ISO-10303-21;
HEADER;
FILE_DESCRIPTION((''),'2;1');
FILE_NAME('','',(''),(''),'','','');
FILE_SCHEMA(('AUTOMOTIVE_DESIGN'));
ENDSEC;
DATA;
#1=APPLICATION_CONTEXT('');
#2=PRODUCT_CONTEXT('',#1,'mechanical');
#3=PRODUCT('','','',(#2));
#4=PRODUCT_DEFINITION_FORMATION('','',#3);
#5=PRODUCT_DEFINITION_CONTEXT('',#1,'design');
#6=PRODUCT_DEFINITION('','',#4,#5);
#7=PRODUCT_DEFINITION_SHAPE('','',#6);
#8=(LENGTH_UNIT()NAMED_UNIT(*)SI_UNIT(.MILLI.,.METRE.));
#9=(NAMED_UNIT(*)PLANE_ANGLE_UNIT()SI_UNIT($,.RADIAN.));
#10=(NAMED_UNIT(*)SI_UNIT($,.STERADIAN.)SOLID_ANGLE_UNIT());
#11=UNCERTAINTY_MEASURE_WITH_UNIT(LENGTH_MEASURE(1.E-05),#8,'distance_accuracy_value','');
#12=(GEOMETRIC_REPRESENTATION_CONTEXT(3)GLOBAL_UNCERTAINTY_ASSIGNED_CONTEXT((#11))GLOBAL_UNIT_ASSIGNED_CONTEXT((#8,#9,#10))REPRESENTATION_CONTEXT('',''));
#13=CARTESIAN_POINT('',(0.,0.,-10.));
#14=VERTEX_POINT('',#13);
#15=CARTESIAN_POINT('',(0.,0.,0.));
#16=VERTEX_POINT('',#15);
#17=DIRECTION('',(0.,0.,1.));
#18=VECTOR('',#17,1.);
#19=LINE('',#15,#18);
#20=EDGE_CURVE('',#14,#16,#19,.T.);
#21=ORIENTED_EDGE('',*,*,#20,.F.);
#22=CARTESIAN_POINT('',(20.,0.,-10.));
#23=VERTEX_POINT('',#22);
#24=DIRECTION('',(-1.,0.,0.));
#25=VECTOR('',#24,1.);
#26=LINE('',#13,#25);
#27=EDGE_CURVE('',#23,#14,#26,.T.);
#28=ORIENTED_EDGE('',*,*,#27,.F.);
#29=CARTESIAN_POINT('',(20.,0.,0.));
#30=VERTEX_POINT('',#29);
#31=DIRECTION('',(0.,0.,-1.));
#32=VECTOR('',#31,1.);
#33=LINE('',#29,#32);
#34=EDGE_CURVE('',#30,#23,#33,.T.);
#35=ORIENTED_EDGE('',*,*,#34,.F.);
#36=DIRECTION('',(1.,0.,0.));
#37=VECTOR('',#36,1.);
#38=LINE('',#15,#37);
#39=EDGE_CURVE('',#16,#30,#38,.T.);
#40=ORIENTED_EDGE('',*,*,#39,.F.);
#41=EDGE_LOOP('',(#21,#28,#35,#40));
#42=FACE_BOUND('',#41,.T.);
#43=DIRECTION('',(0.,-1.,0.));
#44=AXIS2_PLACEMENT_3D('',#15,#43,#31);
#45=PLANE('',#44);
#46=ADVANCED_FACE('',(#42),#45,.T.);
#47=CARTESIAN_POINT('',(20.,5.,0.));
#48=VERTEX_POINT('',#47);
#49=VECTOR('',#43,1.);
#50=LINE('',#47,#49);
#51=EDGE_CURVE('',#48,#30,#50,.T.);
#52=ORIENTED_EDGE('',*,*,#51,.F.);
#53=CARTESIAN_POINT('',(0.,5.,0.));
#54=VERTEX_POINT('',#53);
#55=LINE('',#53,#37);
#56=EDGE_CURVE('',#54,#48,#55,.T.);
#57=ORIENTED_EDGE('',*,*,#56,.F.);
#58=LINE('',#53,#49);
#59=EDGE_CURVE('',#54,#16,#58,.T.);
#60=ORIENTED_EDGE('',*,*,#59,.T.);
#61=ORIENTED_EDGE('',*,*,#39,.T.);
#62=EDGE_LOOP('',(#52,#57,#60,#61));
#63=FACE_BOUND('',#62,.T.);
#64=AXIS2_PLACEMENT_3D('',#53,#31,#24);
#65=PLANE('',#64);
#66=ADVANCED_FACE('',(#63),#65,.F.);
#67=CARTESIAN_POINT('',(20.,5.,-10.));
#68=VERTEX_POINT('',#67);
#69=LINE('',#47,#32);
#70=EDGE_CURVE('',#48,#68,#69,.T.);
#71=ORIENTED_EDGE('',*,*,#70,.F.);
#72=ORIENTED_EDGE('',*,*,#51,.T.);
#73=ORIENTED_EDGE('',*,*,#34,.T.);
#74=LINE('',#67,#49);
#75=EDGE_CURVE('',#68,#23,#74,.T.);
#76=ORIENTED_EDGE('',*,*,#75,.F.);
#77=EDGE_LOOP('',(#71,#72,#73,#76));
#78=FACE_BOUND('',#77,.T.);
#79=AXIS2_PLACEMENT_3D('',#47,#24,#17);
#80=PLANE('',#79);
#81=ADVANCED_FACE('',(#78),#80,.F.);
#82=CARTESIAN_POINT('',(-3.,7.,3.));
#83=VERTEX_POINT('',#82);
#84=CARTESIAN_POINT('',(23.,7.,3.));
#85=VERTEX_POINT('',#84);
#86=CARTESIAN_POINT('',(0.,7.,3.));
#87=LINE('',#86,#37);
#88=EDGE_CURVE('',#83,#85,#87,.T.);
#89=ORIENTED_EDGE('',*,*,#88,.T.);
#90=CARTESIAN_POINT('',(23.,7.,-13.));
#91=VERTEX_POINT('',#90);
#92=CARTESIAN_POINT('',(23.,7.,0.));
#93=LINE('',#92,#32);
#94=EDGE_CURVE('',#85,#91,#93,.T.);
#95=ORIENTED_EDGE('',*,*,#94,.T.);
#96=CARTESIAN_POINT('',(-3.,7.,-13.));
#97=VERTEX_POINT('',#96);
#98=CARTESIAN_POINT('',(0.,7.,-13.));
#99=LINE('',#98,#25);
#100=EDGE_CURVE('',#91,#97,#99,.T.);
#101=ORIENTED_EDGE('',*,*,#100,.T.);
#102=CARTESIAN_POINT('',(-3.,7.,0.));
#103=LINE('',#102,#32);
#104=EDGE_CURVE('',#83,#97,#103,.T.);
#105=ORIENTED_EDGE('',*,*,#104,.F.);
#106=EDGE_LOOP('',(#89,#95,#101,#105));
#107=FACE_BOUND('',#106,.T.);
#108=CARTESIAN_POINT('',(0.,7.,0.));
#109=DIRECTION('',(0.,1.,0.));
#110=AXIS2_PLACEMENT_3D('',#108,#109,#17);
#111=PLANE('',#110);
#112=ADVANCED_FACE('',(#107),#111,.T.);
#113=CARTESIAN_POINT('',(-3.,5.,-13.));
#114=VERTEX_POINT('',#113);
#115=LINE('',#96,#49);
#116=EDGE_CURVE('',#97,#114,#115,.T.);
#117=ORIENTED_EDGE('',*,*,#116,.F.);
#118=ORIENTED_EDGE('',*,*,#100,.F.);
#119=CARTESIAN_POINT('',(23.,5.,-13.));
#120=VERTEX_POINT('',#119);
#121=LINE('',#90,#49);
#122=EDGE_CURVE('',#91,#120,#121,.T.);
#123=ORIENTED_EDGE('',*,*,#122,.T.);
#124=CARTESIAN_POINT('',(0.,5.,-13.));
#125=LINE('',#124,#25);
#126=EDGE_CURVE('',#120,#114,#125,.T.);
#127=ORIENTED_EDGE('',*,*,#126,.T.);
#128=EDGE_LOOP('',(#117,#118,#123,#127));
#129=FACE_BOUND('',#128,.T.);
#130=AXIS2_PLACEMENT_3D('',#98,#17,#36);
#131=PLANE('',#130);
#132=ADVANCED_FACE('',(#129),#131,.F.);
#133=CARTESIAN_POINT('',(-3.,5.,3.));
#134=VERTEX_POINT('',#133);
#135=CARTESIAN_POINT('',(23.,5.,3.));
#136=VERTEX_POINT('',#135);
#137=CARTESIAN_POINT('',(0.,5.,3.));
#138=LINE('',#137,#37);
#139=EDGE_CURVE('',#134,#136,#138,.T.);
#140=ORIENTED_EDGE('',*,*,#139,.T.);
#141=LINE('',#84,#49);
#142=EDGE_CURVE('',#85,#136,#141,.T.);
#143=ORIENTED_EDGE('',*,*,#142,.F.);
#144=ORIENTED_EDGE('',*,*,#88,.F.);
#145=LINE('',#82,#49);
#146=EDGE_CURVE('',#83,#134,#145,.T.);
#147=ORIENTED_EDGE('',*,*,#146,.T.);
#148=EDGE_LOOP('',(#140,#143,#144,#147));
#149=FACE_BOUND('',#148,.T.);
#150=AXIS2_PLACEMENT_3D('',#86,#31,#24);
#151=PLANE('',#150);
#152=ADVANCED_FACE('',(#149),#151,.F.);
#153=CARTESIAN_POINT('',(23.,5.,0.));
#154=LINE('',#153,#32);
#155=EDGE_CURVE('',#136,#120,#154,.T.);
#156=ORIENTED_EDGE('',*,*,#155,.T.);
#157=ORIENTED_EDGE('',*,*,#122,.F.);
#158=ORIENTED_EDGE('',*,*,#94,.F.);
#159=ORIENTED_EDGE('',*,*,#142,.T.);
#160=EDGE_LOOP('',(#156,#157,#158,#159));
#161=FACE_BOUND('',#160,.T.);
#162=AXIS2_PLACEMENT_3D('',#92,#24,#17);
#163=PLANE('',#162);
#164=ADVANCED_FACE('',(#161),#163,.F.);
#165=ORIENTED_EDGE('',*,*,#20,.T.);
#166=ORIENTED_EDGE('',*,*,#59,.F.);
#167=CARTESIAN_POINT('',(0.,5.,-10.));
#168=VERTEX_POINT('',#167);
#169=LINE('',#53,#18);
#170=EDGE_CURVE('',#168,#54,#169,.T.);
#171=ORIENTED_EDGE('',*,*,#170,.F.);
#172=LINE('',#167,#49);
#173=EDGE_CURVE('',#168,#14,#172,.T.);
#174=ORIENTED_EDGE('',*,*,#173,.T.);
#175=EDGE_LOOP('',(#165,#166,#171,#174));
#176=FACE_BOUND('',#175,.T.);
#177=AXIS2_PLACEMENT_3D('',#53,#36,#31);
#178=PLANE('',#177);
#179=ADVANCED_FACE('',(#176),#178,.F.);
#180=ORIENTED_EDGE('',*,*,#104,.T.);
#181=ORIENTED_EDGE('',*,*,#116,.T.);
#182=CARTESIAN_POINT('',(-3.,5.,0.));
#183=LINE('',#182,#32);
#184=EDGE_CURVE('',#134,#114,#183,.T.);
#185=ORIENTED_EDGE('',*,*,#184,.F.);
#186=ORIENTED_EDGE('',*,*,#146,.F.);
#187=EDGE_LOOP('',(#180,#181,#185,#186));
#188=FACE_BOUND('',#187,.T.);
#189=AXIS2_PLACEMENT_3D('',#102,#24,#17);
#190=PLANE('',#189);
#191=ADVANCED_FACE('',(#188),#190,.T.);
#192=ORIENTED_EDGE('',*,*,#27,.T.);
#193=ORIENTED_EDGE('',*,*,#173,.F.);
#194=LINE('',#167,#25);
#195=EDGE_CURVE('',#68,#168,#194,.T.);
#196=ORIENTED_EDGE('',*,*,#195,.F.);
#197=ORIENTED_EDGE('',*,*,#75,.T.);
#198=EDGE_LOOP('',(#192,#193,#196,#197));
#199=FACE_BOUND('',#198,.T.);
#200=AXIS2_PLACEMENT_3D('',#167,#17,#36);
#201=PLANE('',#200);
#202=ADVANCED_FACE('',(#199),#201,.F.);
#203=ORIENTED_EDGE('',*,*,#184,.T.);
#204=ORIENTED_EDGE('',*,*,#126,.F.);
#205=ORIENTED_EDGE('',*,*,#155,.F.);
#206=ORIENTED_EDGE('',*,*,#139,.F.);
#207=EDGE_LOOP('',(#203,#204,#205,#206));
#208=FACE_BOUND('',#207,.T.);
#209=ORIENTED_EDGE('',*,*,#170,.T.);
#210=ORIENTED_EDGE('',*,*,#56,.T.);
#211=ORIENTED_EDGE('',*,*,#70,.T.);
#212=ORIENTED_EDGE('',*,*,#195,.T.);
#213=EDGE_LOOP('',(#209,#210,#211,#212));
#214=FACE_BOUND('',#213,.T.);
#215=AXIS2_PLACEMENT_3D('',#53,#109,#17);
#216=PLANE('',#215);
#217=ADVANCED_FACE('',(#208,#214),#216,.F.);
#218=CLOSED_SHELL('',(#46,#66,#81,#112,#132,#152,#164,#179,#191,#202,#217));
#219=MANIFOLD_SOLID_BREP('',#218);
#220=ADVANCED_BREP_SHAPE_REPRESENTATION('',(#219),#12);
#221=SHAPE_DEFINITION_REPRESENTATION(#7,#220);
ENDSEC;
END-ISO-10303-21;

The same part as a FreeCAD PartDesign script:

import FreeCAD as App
import Part
import Sketcher

V = App.Vector


def add_polygon(sketch, points):
    """Adds a closed chain of lines whose ends are joined by coincident constraints."""
    first, n = sketch.GeometryCount, len(points)
    for a, b in zip(points, points[1:] + points[:1]):
        sketch.addGeometry(Part.LineSegment(App.Vector(*a, 0), App.Vector(*b, 0)), False)
    for i in range(n):
        sketch.addConstraint(Sketcher.Constraint("Coincident", first + i, 2, first + (i + 1) % n, 1))

doc = App.newDocument("Part")
body = doc.addObject("PartDesign::Body", "Body")

sketch1 = body.newObject("Sketcher::SketchObject", "Sketch")
sketch1.AttachmentSupport = (doc.getObject("XZ_Plane"), [""])
sketch1.MapMode = "FlatFace"
add_polygon(sketch1, [(0, -10), (0, 0), (20, 0), (20, -10)])
sketch1.addConstraint([
    Sketcher.Constraint("Vertical", 0),
    Sketcher.Constraint("Horizontal", 1),
    Sketcher.Constraint("Vertical", 2),
    Sketcher.Constraint("Horizontal", 3),
    Sketcher.Constraint("Coincident", 0, 2, -1, 1),
    Sketcher.Constraint("DistanceX", 1, 1, 1, 2, 20.0),
    Sketcher.Constraint("DistanceY", 0, 1, 0, 2, 10.0),
])
pad1 = body.newObject("PartDesign::Pad", "Pad")
pad1.Profile = sketch1
pad1.Length = 5
pad1.Reversed = True

sketch2 = body.newObject("Sketcher::SketchObject", "Sketch001")
sketch2.AttachmentSupport = (doc.getObject("XZ_Plane"), [""])
sketch2.MapMode = "FlatFace"
sketch2.AttachmentOffset = App.Placement(V(0, 0, -5), App.Rotation())
add_polygon(sketch2, [(-3, -13), (-3, 3), (23, 3), (23, -13)])
sketch2.addConstraint([
    Sketcher.Constraint("Vertical", 0),
    Sketcher.Constraint("Horizontal", 1),
    Sketcher.Constraint("Vertical", 2),
    Sketcher.Constraint("Horizontal", 3),
    Sketcher.Constraint("DistanceX", 1, 1, 1, 2, 26.0),
    Sketcher.Constraint("DistanceY", 0, 1, 0, 2, 16.0),
    Sketcher.Constraint("DistanceX", 0, 2, -1, 1, 3.0),
    Sketcher.Constraint("DistanceY", -1, 1, 0, 2, 3.0),
])
pad2 = body.newObject("PartDesign::Pad", "Pad001")
pad2.Profile = sketch2
pad2.Length = 2
pad2.Reversed = True

doc.recompute()
